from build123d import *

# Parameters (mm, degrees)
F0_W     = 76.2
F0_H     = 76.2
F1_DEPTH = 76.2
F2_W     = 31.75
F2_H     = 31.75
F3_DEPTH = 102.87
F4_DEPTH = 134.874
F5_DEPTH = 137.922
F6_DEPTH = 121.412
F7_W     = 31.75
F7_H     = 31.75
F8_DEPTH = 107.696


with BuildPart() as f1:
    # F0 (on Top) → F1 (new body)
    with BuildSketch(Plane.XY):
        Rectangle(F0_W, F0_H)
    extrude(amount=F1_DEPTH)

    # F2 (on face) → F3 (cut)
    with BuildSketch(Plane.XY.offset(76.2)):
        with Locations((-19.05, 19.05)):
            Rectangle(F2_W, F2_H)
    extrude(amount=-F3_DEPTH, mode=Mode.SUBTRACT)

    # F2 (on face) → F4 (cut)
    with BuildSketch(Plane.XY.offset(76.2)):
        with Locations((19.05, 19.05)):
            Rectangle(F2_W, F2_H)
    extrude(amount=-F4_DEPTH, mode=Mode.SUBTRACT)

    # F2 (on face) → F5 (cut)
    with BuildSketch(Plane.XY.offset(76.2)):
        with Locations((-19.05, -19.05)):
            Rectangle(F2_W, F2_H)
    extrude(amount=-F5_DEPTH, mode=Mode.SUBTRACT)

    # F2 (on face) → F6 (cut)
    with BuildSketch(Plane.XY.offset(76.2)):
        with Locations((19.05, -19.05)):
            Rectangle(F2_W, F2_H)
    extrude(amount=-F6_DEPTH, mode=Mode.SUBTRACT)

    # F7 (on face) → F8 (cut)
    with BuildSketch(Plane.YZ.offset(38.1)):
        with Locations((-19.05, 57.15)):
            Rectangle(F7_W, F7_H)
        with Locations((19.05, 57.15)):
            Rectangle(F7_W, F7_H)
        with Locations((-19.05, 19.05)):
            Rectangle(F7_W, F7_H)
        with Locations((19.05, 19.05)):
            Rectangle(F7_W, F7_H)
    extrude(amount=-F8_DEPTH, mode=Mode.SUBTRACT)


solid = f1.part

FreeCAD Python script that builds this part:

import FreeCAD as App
import Part
import Sketcher
Q = App.Units.Quantity


def add_polygon(sketch, points):
    """Adds a closed chain of lines whose ends are joined by coincident constraints."""
    first, n = sketch.GeometryCount, len(points)
    for a, b in zip(points, points[1:] + points[:1]):
        sketch.addGeometry(Part.LineSegment(App.Vector(*a, 0), App.Vector(*b, 0)), False)
    for i in range(n):
        sketch.addConstraint(Sketcher.Constraint("Coincident", first + i, 2, first + (i + 1) % n, 1))

doc = App.newDocument("Part")
params = doc.addObject("Spreadsheet::Sheet", "Params")
for row, (alias, value) in enumerate([
    ("sketch1_width", "3 in"),
    ("pad1_length", "3 in"),
    ("sketch2_width", "1.25 in"),
    ("pocket1_length", "4.05 in"),
    ("sketch3_width", "1.25 in"),
    ("pocket2_length", "5.31 in"),
    ("sketch4_width", "1.25 in"),
    ("pocket3_length", "5.43 in"),
    ("sketch5_width", "1.25 in"),
    ("pocket4_length", "4.78 in"),
    ("sketch6_width", "1.25 in"),
    ("pocket5_length", "4.24 in"),
], start=1):
    params.set(f"A{row}", alias)
    params.set(f"B{row}", "=" + value)
    params.setAlias(f"B{row}", alias)

body = doc.addObject("PartDesign::Body", "Body")

# Sketch on XY plane
sketch1 = body.newObject("Sketcher::SketchObject", "Sketch")
sketch1.AttachmentSupport = (doc.getObject("XY_Plane"), [""])
sketch1.MapMode = "FlatFace"
add_polygon(sketch1, [(-38.1, 38.1), (-38.1, -38.1), (38.1, -38.1), (38.1, 38.1)])  # lines 0-3
sketch1.addConstraint([
    Sketcher.Constraint("Vertical", 0),
    Sketcher.Constraint("Horizontal", 1),
    Sketcher.Constraint("Vertical", 2),
    Sketcher.Constraint("Horizontal", 3),
    Sketcher.Constraint("Symmetric", 0, 2, 2, 2, -1, 1),
    Sketcher.Constraint("Equal", 3, 0),
    Sketcher.Constraint("DistanceX", 1, 1, 1, 2, Q("3 in")),
])
sketch1.setExpression("Constraints[10]", "Params.sketch1_width")
pad1 = body.newObject("PartDesign::Pad", "Pad")
pad1.Profile = sketch1
pad1.setExpression("Length", "Params.pad1_length")

# Sketch on XY plane
sketch2 = body.newObject("Sketcher::SketchObject", "Sketch001")
sketch2.AttachmentSupport = (doc.getObject("XY_Plane"), [""])
sketch2.MapMode = "FlatFace"
sketch2.AttachmentOffset = App.Placement(App.Vector(0, 0, 3 * 25.4), App.Rotation())
add_polygon(sketch2, [(-34.925, 34.925), (-34.925, 3.175), (-3.175, 3.175), (-3.175, 34.925)])  # lines 0-3
sketch2.addConstraint([
    Sketcher.Constraint("Vertical", 0),
    Sketcher.Constraint("Horizontal", 1),
    Sketcher.Constraint("Vertical", 2),
    Sketcher.Constraint("Horizontal", 3),
    Sketcher.Constraint("Equal", 3, 0),
    Sketcher.Constraint("DistanceX", 1, 1, 1, 2, Q("1.25 in")),
    Sketcher.Constraint("DistanceX", 0, 2, -1, 1, Q("1.375 in")),
    Sketcher.Constraint("DistanceY", -1, 1, 0, 2, Q("0.125 in")),
])
sketch2.setExpression("Constraints[9]", "Params.sketch2_width")
pocket1 = body.newObject("PartDesign::Pocket", "Pocket")
pocket1.Profile = sketch2
pocket1.setExpression("Length", "Params.pocket1_length")

# Sketch on XY plane
sketch3 = body.newObject("Sketcher::SketchObject", "Sketch002")
sketch3.AttachmentSupport = (doc.getObject("XY_Plane"), [""])
sketch3.MapMode = "FlatFace"
sketch3.AttachmentOffset = App.Placement(App.Vector(0, 0, 3 * 25.4), App.Rotation())
add_polygon(sketch3, [(3.175, 34.925), (3.175, 3.175), (34.925, 3.175), (34.925, 34.925)])  # lines 0-3
sketch3.addConstraint([
    Sketcher.Constraint("Vertical", 0),
    Sketcher.Constraint("Horizontal", 1),
    Sketcher.Constraint("Vertical", 2),
    Sketcher.Constraint("Horizontal", 3),
    Sketcher.Constraint("Equal", 3, 0),
    Sketcher.Constraint("DistanceX", 1, 1, 1, 2, Q("1.25 in")),
    Sketcher.Constraint("DistanceX", -1, 1, 0, 2, Q("0.125 in")),
    Sketcher.Constraint("DistanceY", -1, 1, 0, 2, Q("0.125 in")),
])
sketch3.setExpression("Constraints[9]", "Params.sketch3_width")
pocket2 = body.newObject("PartDesign::Pocket", "Pocket001")
pocket2.Profile = sketch3
pocket2.setExpression("Length", "Params.pocket2_length")

# Sketch on XY plane
sketch4 = body.newObject("Sketcher::SketchObject", "Sketch003")
sketch4.AttachmentSupport = (doc.getObject("XY_Plane"), [""])
sketch4.MapMode = "FlatFace"
sketch4.AttachmentOffset = App.Placement(App.Vector(0, 0, 3 * 25.4), App.Rotation())
add_polygon(sketch4, [(-34.925, -3.175), (-34.925, -34.925), (-3.175, -34.925), (-3.175, -3.175)])  # lines 0-3
sketch4.addConstraint([
    Sketcher.Constraint("Vertical", 0),
    Sketcher.Constraint("Horizontal", 1),
    Sketcher.Constraint("Vertical", 2),
    Sketcher.Constraint("Horizontal", 3),
    Sketcher.Constraint("Equal", 3, 0),
    Sketcher.Constraint("DistanceX", 1, 1, 1, 2, Q("1.25 in")),
    Sketcher.Constraint("DistanceX", 0, 2, -1, 1, Q("1.375 in")),
    Sketcher.Constraint("DistanceY", 0, 2, -1, 1, Q("1.375 in")),
])
sketch4.setExpression("Constraints[9]", "Params.sketch4_width")
pocket3 = body.newObject("PartDesign::Pocket", "Pocket002")
pocket3.Profile = sketch4
pocket3.setExpression("Length", "Params.pocket3_length")

# Sketch on XY plane
sketch5 = body.newObject("Sketcher::SketchObject", "Sketch004")
sketch5.AttachmentSupport = (doc.getObject("XY_Plane"), [""])
sketch5.MapMode = "FlatFace"
sketch5.AttachmentOffset = App.Placement(App.Vector(0, 0, 3 * 25.4), App.Rotation())
add_polygon(sketch5, [(3.175, -3.175), (3.175, -34.925), (34.925, -34.925), (34.925, -3.175)])  # lines 0-3
sketch5.addConstraint([
    Sketcher.Constraint("Vertical", 0),
    Sketcher.Constraint("Horizontal", 1),
    Sketcher.Constraint("Vertical", 2),
    Sketcher.Constraint("Horizontal", 3),
    Sketcher.Constraint("Equal", 3, 0),
    Sketcher.Constraint("DistanceX", 1, 1, 1, 2, Q("1.25 in")),
    Sketcher.Constraint("DistanceX", -1, 1, 0, 2, Q("0.125 in")),
    Sketcher.Constraint("DistanceY", 0, 2, -1, 1, Q("1.375 in")),
])
sketch5.setExpression("Constraints[9]", "Params.sketch5_width")
pocket4 = body.newObject("PartDesign::Pocket", "Pocket003")
pocket4.Profile = sketch5
pocket4.setExpression("Length", "Params.pocket4_length")

# Sketch on YZ plane
sketch6 = body.newObject("Sketcher::SketchObject", "Sketch005")
sketch6.AttachmentSupport = (doc.getObject("YZ_Plane"), [""])
sketch6.MapMode = "FlatFace"
sketch6.AttachmentOffset = App.Placement(App.Vector(0, 0, 1.5 * 25.4), App.Rotation())
add_polygon(sketch6, [(-34.925, 73.025), (-34.925, 41.275), (-3.175, 41.275), (-3.175, 73.025)])  # lines 0-3
add_polygon(sketch6, [(3.175, 73.025), (3.175, 41.275), (34.925, 41.275), (34.925, 73.025)])  # lines 4-7
add_polygon(sketch6, [(-34.925, 34.925), (-34.925, 3.175), (-3.175, 3.175), (-3.175, 34.925)])  # lines 8-11
add_polygon(sketch6, [(3.175, 34.925), (3.175, 3.175), (34.925, 3.175), (34.925, 34.925)])  # lines 12-15
sketch6.addConstraint([
    Sketcher.Constraint("Vertical", 0),
    Sketcher.Constraint("Horizontal", 1),
    Sketcher.Constraint("Vertical", 2),
    Sketcher.Constraint("Horizontal", 3),
    Sketcher.Constraint("Vertical", 4),
    Sketcher.Constraint("Horizontal", 5),
    Sketcher.Constraint("Vertical", 6),
    Sketcher.Constraint("Horizontal", 7),
    Sketcher.Constraint("Vertical", 8),
    Sketcher.Constraint("Horizontal", 9),
    Sketcher.Constraint("Vertical", 10),
    Sketcher.Constraint("Horizontal", 11),
    Sketcher.Constraint("Vertical", 12),
    Sketcher.Constraint("Horizontal", 13),
    Sketcher.Constraint("Vertical", 14),
    Sketcher.Constraint("Horizontal", 15),
    Sketcher.Constraint("Symmetric", 1, 2, 4, 2, -2),
    Sketcher.Constraint("Symmetric", 3, 2, 6, 2, -2),
    Sketcher.Constraint("Symmetric", 9, 2, 12, 2, -2),
    Sketcher.Constraint("Symmetric", 11, 2, 14, 2, -2),
    Sketcher.Constraint("Vertical", 3, 2, 8, 2),
    Sketcher.Constraint("Vertical", 2, 2, 9, 2),
    Sketcher.Constraint("Equal", 15, 0),
    Sketcher.Constraint("Equal", 6, 8),
    Sketcher.Constraint("DistanceX", 1, 1, 1, 2, Q("1.25 in")),
    Sketcher.Constraint("DistanceX", 0, 2, 4, 2, Q("1.5 in")),
    Sketcher.Constraint("DistanceY", 8, 2, 0, 2, Q("1.5 in")),
    Sketcher.Constraint("DistanceY", -1, 1, 0, 2, Q("1.625 in")),
])
sketch6.setExpression("Constraints[40]", "Params.sketch6_width")
pocket5 = body.newObject("PartDesign::Pocket", "Pocket004")
pocket5.Profile = sketch6
pocket5.setExpression("Length", "Params.pocket5_length")

doc.recompute()
